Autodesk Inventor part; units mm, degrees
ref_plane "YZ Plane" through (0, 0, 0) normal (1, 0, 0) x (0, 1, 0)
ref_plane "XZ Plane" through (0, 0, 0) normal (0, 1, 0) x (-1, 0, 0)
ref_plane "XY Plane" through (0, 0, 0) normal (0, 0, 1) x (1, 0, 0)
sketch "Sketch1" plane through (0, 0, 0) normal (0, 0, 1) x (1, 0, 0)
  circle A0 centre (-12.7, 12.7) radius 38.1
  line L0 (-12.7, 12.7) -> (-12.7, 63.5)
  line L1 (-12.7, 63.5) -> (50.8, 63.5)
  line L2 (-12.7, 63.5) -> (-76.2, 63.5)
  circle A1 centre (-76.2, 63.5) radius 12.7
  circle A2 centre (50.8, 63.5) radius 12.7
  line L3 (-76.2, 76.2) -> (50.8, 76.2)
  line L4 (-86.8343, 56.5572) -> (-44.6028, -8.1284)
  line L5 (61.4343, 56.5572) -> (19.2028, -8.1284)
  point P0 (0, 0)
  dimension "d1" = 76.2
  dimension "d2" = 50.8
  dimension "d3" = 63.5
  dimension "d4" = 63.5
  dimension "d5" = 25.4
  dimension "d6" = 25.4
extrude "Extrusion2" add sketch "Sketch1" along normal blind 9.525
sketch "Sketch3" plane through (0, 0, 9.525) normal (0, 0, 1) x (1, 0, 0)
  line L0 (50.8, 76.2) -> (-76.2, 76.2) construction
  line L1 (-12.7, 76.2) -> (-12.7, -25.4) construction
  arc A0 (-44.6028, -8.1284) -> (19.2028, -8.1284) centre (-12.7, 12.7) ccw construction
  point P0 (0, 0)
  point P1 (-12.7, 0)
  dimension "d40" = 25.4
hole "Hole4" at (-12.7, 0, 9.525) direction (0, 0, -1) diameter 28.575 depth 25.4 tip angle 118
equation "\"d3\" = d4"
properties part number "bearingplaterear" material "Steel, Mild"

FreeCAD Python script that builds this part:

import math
import FreeCAD as App
import Part
import Sketcher
Q = App.Units.Quantity

doc = App.newDocument("Part")
body = doc.addObject("PartDesign::Body", "Body")

# Sketch on XY plane
sketch1 = body.newObject("Sketcher::SketchObject", "Sketch")
sketch1.AttachmentSupport = (doc.getObject("XY_Plane"), [""])
sketch1.MapMode = "FlatFace"
sketch1.addGeometry([
    Part.ArcOfCircle(Part.Circle(App.Vector(-12.7, 12.7, 0), App.Vector(0, 0, 1), 38.1), math.radians(-146.860662), math.radians(-33.139338)),  # 0
    Part.LineSegment(App.Vector(19.2028, -8.1284, 0), App.Vector(61.4343, 56.5572, 0)),  # 1
    Part.ArcOfCircle(Part.Circle(App.Vector(50.8, 63.5, 0), App.Vector(0, 0, 1), 12.7), math.radians(-33.139256), math.radians(90)),  # 2
    Part.LineSegment(App.Vector(50.8, 76.2, 0), App.Vector(-76.2, 76.2, 0)),  # 3
    Part.ArcOfCircle(Part.Circle(App.Vector(-76.2, 63.5, 0), App.Vector(0, 0, 1), 12.7), math.radians(90), math.radians(213.139256)),  # 4
    Part.LineSegment(App.Vector(-86.8343, 56.5572, 0), App.Vector(-44.6028, -8.1284, 0)),  # 5
], False)
sketch1.addConstraint([
    Sketcher.Constraint("Tangent", 0, 2, 1, 1),
    Sketcher.Constraint("Tangent", 1, 2, 2, 1),
    Sketcher.Constraint("Tangent", 2, 2, 3, 1),
    Sketcher.Constraint("Tangent", 3, 2, 4, 1),
    Sketcher.Constraint("Tangent", 4, 2, 5, 1),
    Sketcher.Constraint("Tangent", 5, 2, 0, 1),
    Sketcher.Constraint("Horizontal", 3),
    Sketcher.Constraint("Equal", 2, 4),
    Sketcher.Constraint("Horizontal", 1, 2, 4, 2),
    Sketcher.Constraint("Radius", 0, Q("1.5 in")),
    Sketcher.Constraint("Radius", 2, Q("0.5 in")),
    Sketcher.Constraint("DistanceX", -1, 1, 2, 3, Q("2 in")),
    Sketcher.Constraint("DistanceX", 4, 3, -1, 1, Q("3 in")),
    Sketcher.Constraint("DistanceY", -1, 1, 2, 2, Q("3 in")),
    Sketcher.Constraint("DistanceY", 0, 3, 2, 3, Q("2 in")),
])
pad1 = body.newObject("PartDesign::Pad", "Pad")
pad1.Profile = sketch1
pad1.Length = Q("0.375 in")

# Sketch on XY plane
sketch2 = body.newObject("Sketcher::SketchObject", "Sketch001")
sketch2.AttachmentSupport = (doc.getObject("XY_Plane"), [""])
sketch2.MapMode = "FlatFace"
sketch2.AttachmentOffset = App.Placement(App.Vector(0, 0, 0.375 * 25.4), App.Rotation())
sketch2.addGeometry(Part.Circle(App.Vector(-12.7, 0, 0), App.Vector(0, 0, 1), 14.2875), False)
sketch2.addConstraint([
    Sketcher.Constraint("PointOnObject", 0, 3, -1),
    Sketcher.Constraint("Diameter", 0, Q("1.125 in")),
    Sketcher.Constraint("DistanceX", 0, 3, -1, 1, Q("0.5 in")),
])
doc.recompute()
hole = body.newObject("PartDesign::Hole", "Hole")
hole.Profile = sketch2
hole.ThreadType = "None"
hole.Diameter = Q("1.125 in")
hole.DepthType = "Dimension"
hole.Depth = Q("1 in")
hole.DrillPoint = "Angled"
hole.DrillPointAngle = 118

doc.recompute()
